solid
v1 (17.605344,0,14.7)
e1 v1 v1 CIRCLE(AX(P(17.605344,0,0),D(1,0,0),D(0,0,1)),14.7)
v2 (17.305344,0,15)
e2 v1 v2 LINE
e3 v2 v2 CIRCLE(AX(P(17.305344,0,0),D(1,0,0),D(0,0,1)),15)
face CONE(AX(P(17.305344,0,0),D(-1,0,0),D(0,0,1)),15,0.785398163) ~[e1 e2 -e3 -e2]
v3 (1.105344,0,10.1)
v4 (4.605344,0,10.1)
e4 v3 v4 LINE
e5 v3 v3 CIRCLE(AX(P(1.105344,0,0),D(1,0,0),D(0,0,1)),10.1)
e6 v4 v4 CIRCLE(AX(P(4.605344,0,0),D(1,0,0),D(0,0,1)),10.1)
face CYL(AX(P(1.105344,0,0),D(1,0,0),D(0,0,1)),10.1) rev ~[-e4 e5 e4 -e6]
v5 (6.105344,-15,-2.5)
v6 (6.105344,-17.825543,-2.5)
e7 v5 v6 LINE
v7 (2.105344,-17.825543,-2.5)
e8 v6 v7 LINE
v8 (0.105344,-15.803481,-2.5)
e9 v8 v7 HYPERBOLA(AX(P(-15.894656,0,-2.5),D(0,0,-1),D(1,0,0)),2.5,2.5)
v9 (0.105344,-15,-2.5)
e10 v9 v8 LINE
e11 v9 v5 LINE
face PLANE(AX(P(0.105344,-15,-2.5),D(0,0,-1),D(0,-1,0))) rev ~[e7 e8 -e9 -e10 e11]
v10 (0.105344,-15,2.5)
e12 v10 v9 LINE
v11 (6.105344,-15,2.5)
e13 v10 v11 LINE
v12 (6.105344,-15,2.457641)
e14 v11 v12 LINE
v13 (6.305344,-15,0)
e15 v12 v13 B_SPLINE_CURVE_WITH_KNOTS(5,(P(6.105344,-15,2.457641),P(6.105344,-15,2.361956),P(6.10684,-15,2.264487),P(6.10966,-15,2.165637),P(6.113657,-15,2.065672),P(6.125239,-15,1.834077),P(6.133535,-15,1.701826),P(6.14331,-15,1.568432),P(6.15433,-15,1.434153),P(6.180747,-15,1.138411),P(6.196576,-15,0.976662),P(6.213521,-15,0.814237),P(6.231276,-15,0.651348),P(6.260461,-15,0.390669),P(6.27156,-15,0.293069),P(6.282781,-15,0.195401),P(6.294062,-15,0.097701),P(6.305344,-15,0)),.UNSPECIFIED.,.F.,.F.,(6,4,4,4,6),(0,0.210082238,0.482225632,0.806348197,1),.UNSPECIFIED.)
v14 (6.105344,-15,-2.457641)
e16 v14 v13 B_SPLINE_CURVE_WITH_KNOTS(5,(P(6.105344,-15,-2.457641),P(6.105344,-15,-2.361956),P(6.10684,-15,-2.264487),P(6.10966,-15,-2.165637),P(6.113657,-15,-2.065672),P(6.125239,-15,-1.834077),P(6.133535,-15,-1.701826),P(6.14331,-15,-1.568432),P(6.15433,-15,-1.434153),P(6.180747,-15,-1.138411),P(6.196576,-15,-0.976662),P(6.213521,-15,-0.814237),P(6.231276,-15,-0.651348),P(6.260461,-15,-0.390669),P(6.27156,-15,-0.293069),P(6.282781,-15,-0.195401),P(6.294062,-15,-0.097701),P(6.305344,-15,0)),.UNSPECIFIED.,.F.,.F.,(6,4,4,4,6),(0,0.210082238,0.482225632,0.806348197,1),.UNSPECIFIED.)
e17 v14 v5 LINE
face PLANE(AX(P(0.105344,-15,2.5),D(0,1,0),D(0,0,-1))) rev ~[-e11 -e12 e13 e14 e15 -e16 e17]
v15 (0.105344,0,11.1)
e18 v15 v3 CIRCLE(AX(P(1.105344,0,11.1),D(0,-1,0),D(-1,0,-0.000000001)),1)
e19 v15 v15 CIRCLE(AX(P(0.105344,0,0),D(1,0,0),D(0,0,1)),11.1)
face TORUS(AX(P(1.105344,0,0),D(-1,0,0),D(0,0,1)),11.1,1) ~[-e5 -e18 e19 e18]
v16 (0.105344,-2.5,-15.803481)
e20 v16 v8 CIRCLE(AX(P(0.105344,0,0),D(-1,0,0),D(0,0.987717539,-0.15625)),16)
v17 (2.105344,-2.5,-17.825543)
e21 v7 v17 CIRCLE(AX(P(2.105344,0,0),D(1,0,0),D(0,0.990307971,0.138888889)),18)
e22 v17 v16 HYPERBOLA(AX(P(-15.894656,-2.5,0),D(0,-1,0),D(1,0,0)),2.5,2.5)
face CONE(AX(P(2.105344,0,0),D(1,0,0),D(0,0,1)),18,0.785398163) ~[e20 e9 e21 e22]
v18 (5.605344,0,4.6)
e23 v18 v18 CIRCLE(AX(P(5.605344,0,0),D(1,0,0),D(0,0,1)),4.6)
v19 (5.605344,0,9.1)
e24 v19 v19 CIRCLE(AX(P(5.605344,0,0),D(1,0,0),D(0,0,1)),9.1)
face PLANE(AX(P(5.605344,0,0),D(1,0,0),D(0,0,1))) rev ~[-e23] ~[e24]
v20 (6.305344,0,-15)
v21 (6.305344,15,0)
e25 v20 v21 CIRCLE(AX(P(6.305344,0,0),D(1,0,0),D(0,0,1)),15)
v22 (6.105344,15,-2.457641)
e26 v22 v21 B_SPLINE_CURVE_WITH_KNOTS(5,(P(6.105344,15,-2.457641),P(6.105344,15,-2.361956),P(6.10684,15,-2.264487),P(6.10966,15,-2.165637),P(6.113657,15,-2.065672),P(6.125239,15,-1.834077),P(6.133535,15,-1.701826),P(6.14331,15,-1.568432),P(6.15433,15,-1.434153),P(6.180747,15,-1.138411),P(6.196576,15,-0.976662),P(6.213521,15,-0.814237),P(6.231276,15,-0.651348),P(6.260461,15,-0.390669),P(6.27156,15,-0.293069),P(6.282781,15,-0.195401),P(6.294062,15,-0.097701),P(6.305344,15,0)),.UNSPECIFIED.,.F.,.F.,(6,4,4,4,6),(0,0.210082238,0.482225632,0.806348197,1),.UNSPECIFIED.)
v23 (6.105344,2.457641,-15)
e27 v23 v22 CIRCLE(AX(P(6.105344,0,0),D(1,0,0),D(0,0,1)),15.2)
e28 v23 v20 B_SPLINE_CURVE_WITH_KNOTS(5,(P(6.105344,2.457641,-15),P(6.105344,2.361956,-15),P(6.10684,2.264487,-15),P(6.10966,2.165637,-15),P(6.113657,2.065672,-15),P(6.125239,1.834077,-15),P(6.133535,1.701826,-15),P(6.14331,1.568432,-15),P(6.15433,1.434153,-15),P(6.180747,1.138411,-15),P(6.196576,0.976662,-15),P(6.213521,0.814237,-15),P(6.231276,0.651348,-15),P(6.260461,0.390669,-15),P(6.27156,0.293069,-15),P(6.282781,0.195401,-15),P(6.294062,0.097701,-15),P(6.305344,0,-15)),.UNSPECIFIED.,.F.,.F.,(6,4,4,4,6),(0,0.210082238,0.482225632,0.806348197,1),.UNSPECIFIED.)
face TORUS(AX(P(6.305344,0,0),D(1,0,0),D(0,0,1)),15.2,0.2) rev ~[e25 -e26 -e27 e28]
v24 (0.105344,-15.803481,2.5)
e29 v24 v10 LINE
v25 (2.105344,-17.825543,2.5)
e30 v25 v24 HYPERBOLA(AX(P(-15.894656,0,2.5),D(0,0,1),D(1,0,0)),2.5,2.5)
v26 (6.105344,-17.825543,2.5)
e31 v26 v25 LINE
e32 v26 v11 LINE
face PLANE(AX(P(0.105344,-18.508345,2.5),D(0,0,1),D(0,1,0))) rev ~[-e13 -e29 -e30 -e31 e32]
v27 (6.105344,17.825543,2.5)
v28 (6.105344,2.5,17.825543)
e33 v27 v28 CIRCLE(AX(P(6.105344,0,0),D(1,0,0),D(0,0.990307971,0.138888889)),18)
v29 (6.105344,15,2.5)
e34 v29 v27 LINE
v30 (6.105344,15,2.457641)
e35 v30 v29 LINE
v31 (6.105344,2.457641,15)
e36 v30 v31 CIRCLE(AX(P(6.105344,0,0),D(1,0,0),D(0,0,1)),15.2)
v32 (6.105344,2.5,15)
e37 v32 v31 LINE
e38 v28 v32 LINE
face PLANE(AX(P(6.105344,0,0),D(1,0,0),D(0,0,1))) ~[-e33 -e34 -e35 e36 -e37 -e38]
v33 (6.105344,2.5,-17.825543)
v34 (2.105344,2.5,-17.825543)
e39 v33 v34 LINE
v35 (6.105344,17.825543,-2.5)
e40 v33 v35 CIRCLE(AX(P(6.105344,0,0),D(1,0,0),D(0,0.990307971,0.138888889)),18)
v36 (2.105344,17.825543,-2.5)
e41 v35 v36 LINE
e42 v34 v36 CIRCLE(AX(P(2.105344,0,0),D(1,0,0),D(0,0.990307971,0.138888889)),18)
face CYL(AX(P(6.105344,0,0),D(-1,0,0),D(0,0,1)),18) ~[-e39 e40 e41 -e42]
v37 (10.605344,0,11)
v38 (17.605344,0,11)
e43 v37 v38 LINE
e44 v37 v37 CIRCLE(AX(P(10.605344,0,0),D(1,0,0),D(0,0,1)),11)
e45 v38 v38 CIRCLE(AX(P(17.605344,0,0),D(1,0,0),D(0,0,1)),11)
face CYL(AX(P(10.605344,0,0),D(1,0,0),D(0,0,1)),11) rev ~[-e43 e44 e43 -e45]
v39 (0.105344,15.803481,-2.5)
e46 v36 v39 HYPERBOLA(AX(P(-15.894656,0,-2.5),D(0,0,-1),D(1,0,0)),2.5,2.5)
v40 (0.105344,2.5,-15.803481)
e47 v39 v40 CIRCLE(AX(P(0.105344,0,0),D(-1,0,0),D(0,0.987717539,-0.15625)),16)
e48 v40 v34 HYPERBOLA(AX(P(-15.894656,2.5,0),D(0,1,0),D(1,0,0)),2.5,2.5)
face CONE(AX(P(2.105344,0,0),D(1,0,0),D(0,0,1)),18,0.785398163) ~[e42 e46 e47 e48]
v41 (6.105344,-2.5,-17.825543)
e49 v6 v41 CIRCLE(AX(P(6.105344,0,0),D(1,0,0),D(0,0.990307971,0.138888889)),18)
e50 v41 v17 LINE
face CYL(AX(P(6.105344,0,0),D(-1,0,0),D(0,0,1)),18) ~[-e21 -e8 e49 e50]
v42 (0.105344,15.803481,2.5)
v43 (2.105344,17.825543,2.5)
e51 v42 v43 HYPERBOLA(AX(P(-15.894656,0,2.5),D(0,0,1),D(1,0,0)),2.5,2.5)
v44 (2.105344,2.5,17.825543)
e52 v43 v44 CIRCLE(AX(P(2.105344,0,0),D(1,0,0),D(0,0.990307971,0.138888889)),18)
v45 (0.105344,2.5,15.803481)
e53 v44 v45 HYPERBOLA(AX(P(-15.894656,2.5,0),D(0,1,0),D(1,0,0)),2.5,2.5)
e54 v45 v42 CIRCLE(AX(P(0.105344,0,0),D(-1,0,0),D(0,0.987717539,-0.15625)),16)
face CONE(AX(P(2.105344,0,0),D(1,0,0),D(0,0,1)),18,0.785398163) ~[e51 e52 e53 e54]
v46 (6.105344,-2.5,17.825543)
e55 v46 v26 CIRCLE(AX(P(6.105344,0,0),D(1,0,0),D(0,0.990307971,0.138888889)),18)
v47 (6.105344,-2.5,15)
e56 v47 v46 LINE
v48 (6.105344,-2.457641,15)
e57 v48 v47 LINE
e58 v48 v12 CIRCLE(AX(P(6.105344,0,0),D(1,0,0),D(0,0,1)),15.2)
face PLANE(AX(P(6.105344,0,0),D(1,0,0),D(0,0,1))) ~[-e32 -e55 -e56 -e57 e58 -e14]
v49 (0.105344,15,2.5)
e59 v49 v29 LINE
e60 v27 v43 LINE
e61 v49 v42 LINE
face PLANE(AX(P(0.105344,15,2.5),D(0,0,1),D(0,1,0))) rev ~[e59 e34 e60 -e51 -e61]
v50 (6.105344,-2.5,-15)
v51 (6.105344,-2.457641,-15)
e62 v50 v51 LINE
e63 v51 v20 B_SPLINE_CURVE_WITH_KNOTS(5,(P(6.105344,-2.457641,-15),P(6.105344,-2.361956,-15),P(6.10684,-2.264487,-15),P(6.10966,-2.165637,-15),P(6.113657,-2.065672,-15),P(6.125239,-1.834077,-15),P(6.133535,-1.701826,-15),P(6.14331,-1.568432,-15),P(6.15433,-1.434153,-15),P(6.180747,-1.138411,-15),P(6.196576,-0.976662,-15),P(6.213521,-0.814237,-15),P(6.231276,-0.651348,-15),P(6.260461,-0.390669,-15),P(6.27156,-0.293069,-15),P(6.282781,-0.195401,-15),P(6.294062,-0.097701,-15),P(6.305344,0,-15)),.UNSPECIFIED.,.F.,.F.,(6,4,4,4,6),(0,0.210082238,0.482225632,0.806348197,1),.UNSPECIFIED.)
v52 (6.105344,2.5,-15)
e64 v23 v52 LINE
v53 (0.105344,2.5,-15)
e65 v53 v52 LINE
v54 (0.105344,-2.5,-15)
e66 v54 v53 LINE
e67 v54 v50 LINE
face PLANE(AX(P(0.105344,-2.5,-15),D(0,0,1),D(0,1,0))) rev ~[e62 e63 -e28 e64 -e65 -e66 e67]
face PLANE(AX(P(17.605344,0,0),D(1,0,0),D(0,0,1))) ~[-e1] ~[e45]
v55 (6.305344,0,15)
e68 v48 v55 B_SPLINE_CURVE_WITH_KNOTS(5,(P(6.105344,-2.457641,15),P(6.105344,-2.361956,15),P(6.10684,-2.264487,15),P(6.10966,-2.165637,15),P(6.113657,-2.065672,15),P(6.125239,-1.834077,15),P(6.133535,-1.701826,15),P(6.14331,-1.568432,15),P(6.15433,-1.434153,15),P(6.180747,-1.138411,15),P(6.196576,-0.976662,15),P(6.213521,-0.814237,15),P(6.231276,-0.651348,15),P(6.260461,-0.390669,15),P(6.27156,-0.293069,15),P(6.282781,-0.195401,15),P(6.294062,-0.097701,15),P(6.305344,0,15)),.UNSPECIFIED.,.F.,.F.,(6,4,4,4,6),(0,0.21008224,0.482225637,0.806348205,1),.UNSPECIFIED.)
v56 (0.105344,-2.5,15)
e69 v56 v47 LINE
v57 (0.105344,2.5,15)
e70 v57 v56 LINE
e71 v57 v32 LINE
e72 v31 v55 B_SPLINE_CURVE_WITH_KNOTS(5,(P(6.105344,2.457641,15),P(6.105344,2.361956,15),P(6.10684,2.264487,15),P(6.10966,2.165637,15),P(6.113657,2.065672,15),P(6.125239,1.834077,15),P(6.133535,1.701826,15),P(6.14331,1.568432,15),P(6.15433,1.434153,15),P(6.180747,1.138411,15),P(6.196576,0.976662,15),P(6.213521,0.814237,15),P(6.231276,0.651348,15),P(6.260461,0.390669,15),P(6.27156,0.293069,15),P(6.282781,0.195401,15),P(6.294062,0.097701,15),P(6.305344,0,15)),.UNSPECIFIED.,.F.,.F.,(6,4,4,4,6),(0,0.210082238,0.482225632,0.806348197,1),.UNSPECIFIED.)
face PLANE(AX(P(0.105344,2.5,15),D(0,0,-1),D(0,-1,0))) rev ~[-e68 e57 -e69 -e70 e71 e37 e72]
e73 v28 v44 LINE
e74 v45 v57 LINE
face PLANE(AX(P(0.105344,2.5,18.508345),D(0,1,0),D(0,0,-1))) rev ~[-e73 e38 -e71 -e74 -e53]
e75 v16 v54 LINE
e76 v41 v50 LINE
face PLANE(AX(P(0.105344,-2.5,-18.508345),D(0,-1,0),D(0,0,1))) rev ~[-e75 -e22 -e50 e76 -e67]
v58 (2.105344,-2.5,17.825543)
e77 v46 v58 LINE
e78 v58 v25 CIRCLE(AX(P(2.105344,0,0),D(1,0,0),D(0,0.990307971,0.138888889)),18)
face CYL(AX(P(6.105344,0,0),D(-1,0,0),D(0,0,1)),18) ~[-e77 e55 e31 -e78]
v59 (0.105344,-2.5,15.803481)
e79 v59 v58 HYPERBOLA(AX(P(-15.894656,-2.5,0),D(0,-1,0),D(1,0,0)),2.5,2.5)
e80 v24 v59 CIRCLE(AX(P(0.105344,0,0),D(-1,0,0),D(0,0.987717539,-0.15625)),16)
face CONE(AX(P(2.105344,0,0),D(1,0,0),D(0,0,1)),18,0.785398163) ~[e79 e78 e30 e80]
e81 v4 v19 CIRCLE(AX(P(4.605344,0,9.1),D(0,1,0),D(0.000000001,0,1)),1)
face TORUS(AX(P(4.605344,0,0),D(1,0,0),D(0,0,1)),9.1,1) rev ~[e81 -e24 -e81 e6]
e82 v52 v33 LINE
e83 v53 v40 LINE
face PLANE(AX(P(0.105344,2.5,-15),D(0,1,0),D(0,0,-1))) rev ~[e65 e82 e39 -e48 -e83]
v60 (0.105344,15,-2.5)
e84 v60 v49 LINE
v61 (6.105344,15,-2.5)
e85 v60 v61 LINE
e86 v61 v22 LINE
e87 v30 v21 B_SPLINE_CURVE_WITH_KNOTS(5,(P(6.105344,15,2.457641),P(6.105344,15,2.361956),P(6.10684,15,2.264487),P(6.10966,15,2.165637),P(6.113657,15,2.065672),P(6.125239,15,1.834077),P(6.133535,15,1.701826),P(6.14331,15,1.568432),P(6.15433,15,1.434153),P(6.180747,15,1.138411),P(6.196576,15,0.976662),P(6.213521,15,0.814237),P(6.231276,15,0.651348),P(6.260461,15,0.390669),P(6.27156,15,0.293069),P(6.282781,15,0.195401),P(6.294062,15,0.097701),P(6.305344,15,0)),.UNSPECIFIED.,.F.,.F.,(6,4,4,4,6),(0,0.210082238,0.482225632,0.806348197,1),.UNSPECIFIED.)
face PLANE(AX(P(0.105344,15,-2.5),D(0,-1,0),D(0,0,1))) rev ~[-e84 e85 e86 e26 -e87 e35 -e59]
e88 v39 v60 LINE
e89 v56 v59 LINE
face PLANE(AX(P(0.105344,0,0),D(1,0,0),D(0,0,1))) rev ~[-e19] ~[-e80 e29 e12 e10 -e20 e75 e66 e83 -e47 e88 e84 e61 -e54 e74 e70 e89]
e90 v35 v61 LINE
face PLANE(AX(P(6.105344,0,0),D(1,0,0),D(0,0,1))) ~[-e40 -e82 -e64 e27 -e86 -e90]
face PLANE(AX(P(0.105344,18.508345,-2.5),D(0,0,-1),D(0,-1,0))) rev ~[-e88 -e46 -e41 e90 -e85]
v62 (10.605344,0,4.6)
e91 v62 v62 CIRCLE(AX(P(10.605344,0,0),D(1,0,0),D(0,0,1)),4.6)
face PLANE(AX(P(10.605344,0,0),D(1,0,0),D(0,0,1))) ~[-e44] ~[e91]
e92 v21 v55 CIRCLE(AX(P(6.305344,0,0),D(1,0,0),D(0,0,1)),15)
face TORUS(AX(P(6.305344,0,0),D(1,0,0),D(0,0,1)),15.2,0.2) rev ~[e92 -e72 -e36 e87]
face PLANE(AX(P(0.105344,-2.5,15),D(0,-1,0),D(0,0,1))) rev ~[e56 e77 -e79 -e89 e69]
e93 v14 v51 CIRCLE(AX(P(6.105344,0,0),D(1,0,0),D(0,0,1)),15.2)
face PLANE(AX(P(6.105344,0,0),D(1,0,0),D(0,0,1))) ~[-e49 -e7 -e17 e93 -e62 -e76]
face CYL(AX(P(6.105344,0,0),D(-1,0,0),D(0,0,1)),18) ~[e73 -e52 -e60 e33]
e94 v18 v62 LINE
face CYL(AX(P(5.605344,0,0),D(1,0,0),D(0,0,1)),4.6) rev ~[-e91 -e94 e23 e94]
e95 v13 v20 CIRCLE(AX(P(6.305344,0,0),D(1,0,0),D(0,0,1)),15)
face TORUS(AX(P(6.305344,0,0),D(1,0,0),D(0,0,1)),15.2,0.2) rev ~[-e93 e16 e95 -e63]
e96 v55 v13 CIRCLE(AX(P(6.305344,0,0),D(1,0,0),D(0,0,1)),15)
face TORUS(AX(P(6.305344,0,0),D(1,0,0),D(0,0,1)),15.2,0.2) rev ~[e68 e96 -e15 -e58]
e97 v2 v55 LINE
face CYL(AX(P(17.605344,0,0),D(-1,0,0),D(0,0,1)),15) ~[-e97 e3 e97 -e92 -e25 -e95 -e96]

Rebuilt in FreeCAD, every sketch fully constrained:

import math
import FreeCAD as App
import Part
import Sketcher

V = App.Vector
Q = App.Units.Quantity


def edges_at(feature, points):
    """Names of the edges that pass closest to the given points."""
    edges = feature.Shape.Edges
    near = lambda p: min(range(len(edges)), key=lambda i: edges[i].distToShape(Part.Vertex(*p))[0])
    return sorted({f"Edge{near(p) + 1}" for p in points})


def add_polygon(sketch, points):
    """Adds a closed chain of lines whose ends are joined by coincident constraints."""
    first, n = sketch.GeometryCount, len(points)
    for a, b in zip(points, points[1:] + points[:1]):
        sketch.addGeometry(Part.LineSegment(App.Vector(*a, 0), App.Vector(*b, 0)), False)
    for i in range(n):
        sketch.addConstraint(Sketcher.Constraint("Coincident", first + i, 2, first + (i + 1) % n, 1))

doc = App.newDocument("Part")
params = doc.addObject("Spreadsheet::Sheet", "Params")
for row, (alias, value) in enumerate([
    ("sketch1_radius", "1 mm"),
    ("sketch1_radius2", "0.2 mm"),
    ("sketch1_width", "4 mm"),
    ("sketch1_width2", "5 mm"),
    ("sketch1_width3", "7 mm"),
    ("revolution_angle", "360 deg"),
    ("sketch2_height", "5 mm"),
    ("chamfer_size", "0.3 mm"),
], start=1):
    params.set(f"A{row}", alias)
    params.set(f"B{row}", "=" + value)
    params.setAlias(f"B{row}", alias)

body = doc.addObject("PartDesign::Body", "Body")

# Sketch on XY plane
sketch1 = body.newObject("Sketcher::SketchObject", "Sketch")
sketch1.AttachmentSupport = (doc.getObject("XY_Plane"), [""])
sketch1.MapMode = "FlatFace"
sketch1.addGeometry(Part.LineSegment(V(17.61, 11, 0), V(17.61, 15, 0)), False)
sketch1.addGeometry(Part.LineSegment(V(17.61, 15, 0), V(6.31, 15, 0)), False)
sketch1.addGeometry(Part.ArcOfCircle(Part.Circle(V(6.31, 15.2, 0), V(0, 0, 1), 0.2), math.radians(-180), math.radians(-90)), False)
sketch1.addGeometry(Part.LineSegment(V(6.11, 15.2, 0), V(6.11, 18, 0)), False)
sketch1.addGeometry(Part.LineSegment(V(6.11, 18, 0), V(2.11, 18, 0)), False)
sketch1.addGeometry(Part.LineSegment(V(2.11, 18, 0), V(0.11, 16, 0)), False)
sketch1.addGeometry(Part.LineSegment(V(0.11, 16, 0), V(0.11, 11.1, 0)), False)
sketch1.addGeometry(Part.ArcOfCircle(Part.Circle(V(1.11, 11.1, 0), V(0, 0, 1), 1), math.radians(-180), math.radians(-90)), False)
sketch1.addGeometry(Part.LineSegment(V(1.11, 10.1, 0), V(4.61, 10.1, 0)), False)
sketch1.addGeometry(Part.ArcOfCircle(Part.Circle(V(4.61, 9.1, 0), V(0, 0, 1), 1), math.radians(0), math.radians(90)), False)
sketch1.addGeometry(Part.LineSegment(V(5.61, 9.1, 0), V(5.61, 4.6, 0)), False)
sketch1.addGeometry(Part.LineSegment(V(5.61, 4.6, 0), V(10.61, 4.6, 0)), False)
sketch1.addGeometry(Part.LineSegment(V(10.61, 4.6, 0), V(10.61, 11, 0)), False)
sketch1.addGeometry(Part.LineSegment(V(10.61, 11, 0), V(17.61, 11, 0)), False)
sketch1.addConstraint(Sketcher.Constraint("Coincident", 0, 2, 1, 1))
sketch1.addConstraint(Sketcher.Constraint("Tangent", 1, 2, 2, 2))
sketch1.addConstraint(Sketcher.Constraint("Tangent", 2, 1, 3, 1))
sketch1.addConstraint(Sketcher.Constraint("Coincident", 3, 2, 4, 1))
sketch1.addConstraint(Sketcher.Constraint("Coincident", 4, 2, 5, 1))
sketch1.addConstraint(Sketcher.Constraint("Coincident", 5, 2, 6, 1))
sketch1.addConstraint(Sketcher.Constraint("Tangent", 6, 2, 7, 1))
sketch1.addConstraint(Sketcher.Constraint("Tangent", 7, 2, 8, 1))
sketch1.addConstraint(Sketcher.Constraint("Tangent", 8, 2, 9, 2))
sketch1.addConstraint(Sketcher.Constraint("Tangent", 9, 1, 10, 1))
sketch1.addConstraint(Sketcher.Constraint("Coincident", 10, 2, 11, 1))
sketch1.addConstraint(Sketcher.Constraint("Coincident", 11, 2, 12, 1))
sketch1.addConstraint(Sketcher.Constraint("Coincident", 12, 2, 13, 1))
sketch1.addConstraint(Sketcher.Constraint("Coincident", 13, 2, 0, 1))
sketch1.addConstraint(Sketcher.Constraint("Vertical", 0))
sketch1.addConstraint(Sketcher.Constraint("Horizontal", 1))
sketch1.addConstraint(Sketcher.Constraint("Vertical", 3))
sketch1.addConstraint(Sketcher.Constraint("Horizontal", 4))
sketch1.addConstraint(Sketcher.Constraint("Vertical", 6))
sketch1.addConstraint(Sketcher.Constraint("Horizontal", 8))
sketch1.addConstraint(Sketcher.Constraint("Vertical", 10))
sketch1.addConstraint(Sketcher.Constraint("Horizontal", 11))
sketch1.addConstraint(Sketcher.Constraint("Vertical", 12))
sketch1.addConstraint(Sketcher.Constraint("Horizontal", 13))
sketch1.addConstraint(Sketcher.Constraint("Equal", 7, 9))
sketch1.addConstraint(Sketcher.Constraint("Equal", 4, 0))
sketch1.addConstraint(Sketcher.Constraint("Radius", 7, 1.0))
sketch1.addConstraint(Sketcher.Constraint("Radius", 2, 0.2))
sketch1.addConstraint(Sketcher.Constraint("DistanceX", 4, 2, 4, 1, 4.0))
sketch1.addConstraint(Sketcher.Constraint("DistanceX", 11, 1, 11, 2, 5.0))
sketch1.addConstraint(Sketcher.Constraint("DistanceX", 13, 1, 13, 2, 7.0))
sketch1.addConstraint(Sketcher.Constraint("Angle", 5, Q("-135 deg")))
sketch1.addConstraint(Sketcher.Constraint("DistanceX", 1, 2, 1, 1, 11.3))
sketch1.addConstraint(Sketcher.Constraint("DistanceX", 8, 1, 8, 2, 3.5))
sketch1.addConstraint(Sketcher.Constraint("DistanceY", 3, 1, 3, 2, 2.8))
sketch1.addConstraint(Sketcher.Constraint("DistanceY", 6, 2, 6, 1, 4.9))
sketch1.addConstraint(Sketcher.Constraint("DistanceY", 10, 2, 10, 1, 4.5))
sketch1.addConstraint(Sketcher.Constraint("DistanceY", -1, 1, 0, 2, 15.0))
sketch1.addConstraint(Sketcher.Constraint("DistanceX", -1, 1, 2, 3, 6.305344))
sketch1.setExpression("Constraints[26]", "Params.sketch1_radius")
sketch1.setExpression("Constraints[27]", "Params.sketch1_radius2")
sketch1.setExpression("Constraints[28]", "Params.sketch1_width")
sketch1.setExpression("Constraints[29]", "Params.sketch1_width2")
sketch1.setExpression("Constraints[30]", "Params.sketch1_width3")
revolution = body.newObject("PartDesign::Revolution", "Revolution")
revolution.Profile = sketch1
revolution.ReferenceAxis = (sketch1, ["H_Axis"])
revolution.setExpression("Angle", "Params.revolution_angle")

# Sketch on YZ plane
sketch2 = body.newObject("Sketcher::SketchObject", "Sketch001")
sketch2.AttachmentSupport = (doc.getObject("YZ_Plane"), [""])
sketch2.MapMode = "FlatFace"
sketch2.AttachmentOffset = App.Placement(V(0, 0, 0.105344), App.Rotation())
add_polygon(sketch2, [(15, -2.5), (15, 2.5), (18.5, 2.5), (18.5, -2.5)])  # lines 0-3
sketch2.addConstraint(Sketcher.Constraint("Vertical", 0))
sketch2.addConstraint(Sketcher.Constraint("Horizontal", 1))
sketch2.addConstraint(Sketcher.Constraint("Vertical", 2))
sketch2.addConstraint(Sketcher.Constraint("Horizontal", 3))
sketch2.addConstraint(Sketcher.Constraint("DistanceY", 0, 1, 0, 2, 5.0))
sketch2.addConstraint(Sketcher.Constraint("DistanceX", -1, 1, 0, 2, 15.0))
sketch2.addConstraint(Sketcher.Constraint("DistanceY", -1, 1, 0, 2, 2.5))
sketch2.addConstraint(Sketcher.Constraint("DistanceX", 1, 1, 1, 2, 3.508345))
sketch2.setExpression("Constraints[8]", "Params.sketch2_height")
pocket1 = body.newObject("PartDesign::Pocket", "Pocket")
pocket1.Profile = sketch2
pocket1.Type = "ThroughAll"
pocket1.Reversed = True
doc.recompute()

polarpattern = body.newObject("PartDesign::PolarPattern", "PolarPattern")
polarpattern.Originals = [pocket1]
polarpattern.Axis = (doc.getObject("X_Axis"), [""])
polarpattern.Angle = 360
polarpattern.Occurrences = 4
body.Tip = polarpattern
doc.recompute()

chamfer = body.newObject("PartDesign::Chamfer", "Chamfer")
chamfer.Base = (polarpattern, edges_at(polarpattern, [(17.605, 0, -15)]))
chamfer.setExpression("Size", "Params.chamfer_size")

doc.recompute()
